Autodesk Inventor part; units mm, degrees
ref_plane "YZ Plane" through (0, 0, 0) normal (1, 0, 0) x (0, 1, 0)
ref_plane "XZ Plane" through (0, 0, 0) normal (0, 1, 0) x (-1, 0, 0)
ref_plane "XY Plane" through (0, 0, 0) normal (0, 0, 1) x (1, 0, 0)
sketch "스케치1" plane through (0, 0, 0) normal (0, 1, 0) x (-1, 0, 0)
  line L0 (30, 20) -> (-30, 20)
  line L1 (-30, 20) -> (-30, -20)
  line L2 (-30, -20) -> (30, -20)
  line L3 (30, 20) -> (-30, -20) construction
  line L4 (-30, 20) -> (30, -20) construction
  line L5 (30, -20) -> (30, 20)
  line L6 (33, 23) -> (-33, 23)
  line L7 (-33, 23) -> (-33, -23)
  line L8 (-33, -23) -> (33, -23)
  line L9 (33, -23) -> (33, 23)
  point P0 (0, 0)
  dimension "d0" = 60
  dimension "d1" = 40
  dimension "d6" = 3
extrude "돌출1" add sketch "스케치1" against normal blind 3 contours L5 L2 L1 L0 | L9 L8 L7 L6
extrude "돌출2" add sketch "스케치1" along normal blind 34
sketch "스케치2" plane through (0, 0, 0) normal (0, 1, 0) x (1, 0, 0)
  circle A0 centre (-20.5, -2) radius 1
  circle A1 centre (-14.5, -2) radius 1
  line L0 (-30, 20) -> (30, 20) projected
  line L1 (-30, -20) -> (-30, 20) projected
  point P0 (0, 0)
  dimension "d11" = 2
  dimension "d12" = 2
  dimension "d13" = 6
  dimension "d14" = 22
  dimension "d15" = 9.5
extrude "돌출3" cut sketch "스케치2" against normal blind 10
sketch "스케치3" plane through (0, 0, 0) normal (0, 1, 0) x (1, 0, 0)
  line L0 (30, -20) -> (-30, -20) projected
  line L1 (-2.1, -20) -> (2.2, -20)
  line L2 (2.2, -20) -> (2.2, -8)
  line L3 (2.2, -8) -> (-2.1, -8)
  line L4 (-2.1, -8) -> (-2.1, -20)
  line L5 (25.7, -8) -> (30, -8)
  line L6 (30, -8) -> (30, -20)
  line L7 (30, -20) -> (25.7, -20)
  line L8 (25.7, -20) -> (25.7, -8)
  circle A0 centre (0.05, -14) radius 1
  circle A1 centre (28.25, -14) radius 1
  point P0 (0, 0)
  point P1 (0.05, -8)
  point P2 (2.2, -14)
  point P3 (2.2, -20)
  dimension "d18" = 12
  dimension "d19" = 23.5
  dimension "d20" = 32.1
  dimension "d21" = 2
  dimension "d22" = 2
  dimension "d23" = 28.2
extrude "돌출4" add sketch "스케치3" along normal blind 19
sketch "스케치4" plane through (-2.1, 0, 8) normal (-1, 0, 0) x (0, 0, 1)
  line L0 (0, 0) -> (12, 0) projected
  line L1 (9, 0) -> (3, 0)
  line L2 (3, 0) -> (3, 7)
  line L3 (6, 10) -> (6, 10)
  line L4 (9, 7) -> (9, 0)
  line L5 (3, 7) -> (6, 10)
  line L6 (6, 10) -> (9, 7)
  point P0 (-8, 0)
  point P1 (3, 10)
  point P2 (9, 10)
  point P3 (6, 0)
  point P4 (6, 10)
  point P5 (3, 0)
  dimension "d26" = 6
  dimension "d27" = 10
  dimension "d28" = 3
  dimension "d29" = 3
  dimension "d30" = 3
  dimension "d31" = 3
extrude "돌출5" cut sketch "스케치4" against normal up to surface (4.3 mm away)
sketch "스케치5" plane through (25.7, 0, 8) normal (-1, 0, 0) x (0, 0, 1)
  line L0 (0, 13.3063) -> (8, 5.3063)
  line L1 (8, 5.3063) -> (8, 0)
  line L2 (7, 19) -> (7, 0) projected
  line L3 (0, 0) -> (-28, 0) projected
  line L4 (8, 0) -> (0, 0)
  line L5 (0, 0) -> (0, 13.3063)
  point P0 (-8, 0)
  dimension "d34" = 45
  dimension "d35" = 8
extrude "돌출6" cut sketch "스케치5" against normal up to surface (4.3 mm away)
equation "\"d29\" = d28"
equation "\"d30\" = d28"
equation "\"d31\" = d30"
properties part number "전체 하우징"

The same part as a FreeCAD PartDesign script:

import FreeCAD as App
import Part
import Sketcher

V = App.Vector
Q = App.Units.Quantity


def add_polygon(sketch, points):
    """Adds a closed chain of lines whose ends are joined by coincident constraints."""
    first, n = sketch.GeometryCount, len(points)
    for a, b in zip(points, points[1:] + points[:1]):
        sketch.addGeometry(Part.LineSegment(App.Vector(*a, 0), App.Vector(*b, 0)), False)
    for i in range(n):
        sketch.addConstraint(Sketcher.Constraint("Coincident", first + i, 2, first + (i + 1) % n, 1))

doc = App.newDocument("Part")
params = doc.addObject("Spreadsheet::Sheet", "Params")
for row, (alias, value) in enumerate([
    ("sketch1_width", "66 mm"),
    ("sketch1_height", "46 mm"),
    ("pad1_length", "3 mm"),
    ("sketch2_width", "60 mm"),
    ("sketch2_height", "40 mm"),
    ("pad2_length", "34 mm"),
    ("sketch3_diameter", "2 mm"),
    ("pocket1_length", "10 mm"),
    ("sketch4_diameter", "2 mm"),
    ("sketch4_height", "12 mm"),
    ("pad3_length", "19 mm"),
    ("sketch5_height", "6 mm"),
    ("pocket2_length", "4.3 mm"),
    ("sketch6_height", "8 mm"),
    ("pocket3_length", "4.3 mm"),
], start=1):
    params.set(f"A{row}", alias)
    params.set(f"B{row}", "=" + value)
    params.setAlias(f"B{row}", alias)

body = doc.addObject("PartDesign::Body", "Body")

sketch1 = body.newObject("Sketcher::SketchObject", "Sketch")
sketch1.AttachmentSupport = (doc.getObject("XZ_Plane"), [""])
sketch1.MapMode = "FlatFace"
add_polygon(sketch1, [(-33, -23), (-33, 23), (33, 23), (33, -23)])
sketch1.addConstraint([
    Sketcher.Constraint("Vertical", 0),
    Sketcher.Constraint("Horizontal", 1),
    Sketcher.Constraint("Vertical", 2),
    Sketcher.Constraint("Horizontal", 3),
    Sketcher.Constraint("Symmetric", 0, 2, 2, 2, -1, 1),
    Sketcher.Constraint("DistanceX", 1, 1, 1, 2, Q("66 mm")),
    Sketcher.Constraint("DistanceY", 0, 1, 0, 2, Q("46 mm")),
])
sketch1.setExpression("Constraints[9]", "Params.sketch1_width")
sketch1.setExpression("Constraints[10]", "Params.sketch1_height")
pad1 = body.newObject("PartDesign::Pad", "Pad")
pad1.Profile = sketch1
pad1.setExpression("Length", "Params.pad1_length")

sketch2 = body.newObject("Sketcher::SketchObject", "Sketch001")
sketch2.AttachmentSupport = (doc.getObject("XZ_Plane"), [""])
sketch2.MapMode = "FlatFace"
add_polygon(sketch2, [(-33, -23), (-33, 23), (33, 23), (33, -23)])
add_polygon(sketch2, [(30, 20), (-30, 20), (-30, -20), (30, -20)])
sketch2.addConstraint([
    Sketcher.Constraint("Vertical", 0),
    Sketcher.Constraint("Horizontal", 1),
    Sketcher.Constraint("Vertical", 2),
    Sketcher.Constraint("Horizontal", 3),
    Sketcher.Constraint("Horizontal", 4),
    Sketcher.Constraint("Vertical", 5),
    Sketcher.Constraint("Horizontal", 6),
    Sketcher.Constraint("Vertical", 7),
    Sketcher.Constraint("Symmetric", 0, 2, 2, 2, -1, 1),
    Sketcher.Constraint("Symmetric", 4, 2, 6, 2, -1, 1),
    Sketcher.Constraint("DistanceX", 4, 2, 4, 1, Q("60 mm")),
    Sketcher.Constraint("DistanceY", 5, 2, 5, 1, Q("40 mm")),
    Sketcher.Constraint("DistanceX", 0, 2, 4, 2, Q("3 mm")),
    Sketcher.Constraint("DistanceY", 4, 2, 0, 2, Q("3 mm")),
])
sketch2.setExpression("Constraints[18]", "Params.sketch2_width")
sketch2.setExpression("Constraints[19]", "Params.sketch2_height")
pad2 = body.newObject("PartDesign::Pad", "Pad001")
pad2.Profile = sketch2
pad2.setExpression("Length", "Params.pad2_length")
pad2.Reversed = True

sketch3 = body.newObject("Sketcher::SketchObject", "Sketch002")
sketch3.AttachmentSupport = (doc.getObject("XZ_Plane"), [""])
sketch3.MapMode = "FlatFace"
sketch3.addGeometry([
    Part.Circle(V(-20.5, 2, 0), V(0, 0, 1), 1),
    Part.Circle(V(-14.5, 2, 0), V(0, 0, 1), 1),
], False)
sketch3.addConstraint([
    Sketcher.Constraint("Equal", 0, 1),
    Sketcher.Constraint("Horizontal", 0, 3, 1, 3),
    Sketcher.Constraint("Diameter", 0, Q("2 mm")),
    Sketcher.Constraint("DistanceY", -1, 1, 0, 3, Q("2 mm")),
    Sketcher.Constraint("DistanceX", 0, 3, 1, 3, Q("6 mm")),
    Sketcher.Constraint("DistanceX", 0, 3, -1, 1, Q("20.5 mm")),
])
sketch3.setExpression("Constraints[2]", "Params.sketch3_diameter")
pocket1 = body.newObject("PartDesign::Pocket", "Pocket")
pocket1.Profile = sketch3
pocket1.setExpression("Length", "Params.pocket1_length")
pocket1.Reversed = True

sketch4 = body.newObject("Sketcher::SketchObject", "Sketch003")
sketch4.AttachmentSupport = (doc.getObject("XZ_Plane"), [""])
sketch4.MapMode = "FlatFace"
add_polygon(sketch4, [(-2.1, 20), (2.2, 20), (2.2, 8), (-2.1, 8)])
sketch4.addGeometry(Part.Circle(V(0.05, 14, 0), V(0, 0, 1), 1), False)
add_polygon(sketch4, [(25.7, 20), (30, 20), (30, 8), (25.7, 8)])
sketch4.addGeometry(Part.Circle(V(28.25, 14, 0), V(0, 0, 1), 1), False)
sketch4.addConstraint([
    Sketcher.Constraint("Horizontal", 0),
    Sketcher.Constraint("Vertical", 1),
    Sketcher.Constraint("Horizontal", 2),
    Sketcher.Constraint("Vertical", 3),
    Sketcher.Constraint("Horizontal", 5),
    Sketcher.Constraint("Vertical", 6),
    Sketcher.Constraint("Horizontal", 7),
    Sketcher.Constraint("Vertical", 8),
    Sketcher.Constraint("Equal", 4, 9),
    Sketcher.Constraint("Horizontal", 4, 3, 9, 3),
    Sketcher.Constraint("Horizontal", 3, 2, 5, 2),
    Sketcher.Constraint("Horizontal", 2, 2, 6, 2),
    Sketcher.Constraint("Equal", 2, 5),
    Sketcher.Constraint("Diameter", 4, Q("2 mm")),
    Sketcher.Constraint("DistanceY", 1, 2, 1, 1, Q("12 mm")),
    Sketcher.Constraint("DistanceX", 4, 3, 9, 3, Q("28.2 mm")),
    Sketcher.Constraint("DistanceX", 3, 2, 5, 2, Q("32.1 mm")),
    Sketcher.Constraint("DistanceX", 1, 2, 7, 2, Q("23.5 mm")),
    Sketcher.Constraint("DistanceY", -1, 1, 4, 3, Q("14 mm")),
    Sketcher.Constraint("DistanceY", -1, 1, 0, 2, Q("20 mm")),
    Sketcher.Constraint("DistanceX", -1, 1, 5, 2, Q("30 mm")),
    Sketcher.Constraint("DistanceX", -1, 1, 4, 3, Q("0.05 mm")),
])
sketch4.setExpression("Constraints[21]", "Params.sketch4_diameter")
sketch4.setExpression("Constraints[22]", "Params.sketch4_height")
pad3 = body.newObject("PartDesign::Pad", "Pad002")
pad3.Profile = sketch4
pad3.setExpression("Length", "Params.pad3_length")
pad3.Reversed = True

sketch5 = body.newObject("Sketcher::SketchObject", "Sketch004")
sketch5.AttachmentSupport = (doc.getObject("YZ_Plane"), [""])
sketch5.MapMode = "FlatFace"
sketch5.AttachmentOffset = App.Placement(V(0, 0, -2.1), App.Rotation())
add_polygon(sketch5, [(7, 11), (0, 11), (0, 17), (7, 17), (10, 14)])
sketch5.addConstraint([
    Sketcher.Constraint("Horizontal", 0),
    Sketcher.Constraint("Vertical", 1),
    Sketcher.Constraint("Horizontal", 2),
    Sketcher.Constraint("PointOnObject", 0, 2, -2),
    Sketcher.Constraint("Perpendicular", 3, 4),
    Sketcher.Constraint("Vertical", 2, 2, 4, 2),
    Sketcher.Constraint("Equal", 3, 4),
    Sketcher.Constraint("DistanceY", 1, 1, 1, 2, Q("6 mm")),
    Sketcher.Constraint("DistanceX", -1, 1, 3, 2, Q("10 mm")),
    Sketcher.Constraint("DistanceY", -1, 1, 0, 2, Q("11 mm")),
])
sketch5.setExpression("Constraints[12]", "Params.sketch5_height")
pocket2 = body.newObject("PartDesign::Pocket", "Pocket001")
pocket2.Profile = sketch5
pocket2.setExpression("Length", "Params.pocket2_length")
pocket2.Reversed = True

sketch6 = body.newObject("Sketcher::SketchObject", "Sketch005")
sketch6.AttachmentSupport = (doc.getObject("YZ_Plane"), [""])
sketch6.MapMode = "FlatFace"
sketch6.AttachmentOffset = App.Placement(V(0, 0, 25.7), App.Rotation())
add_polygon(sketch6, [(13.3063, 8), (0, 8), (0, 16), (5.3063, 16)])
sketch6.addConstraint([
    Sketcher.Constraint("Horizontal", 0),
    Sketcher.Constraint("Vertical", 1),
    Sketcher.Constraint("Horizontal", 2),
    Sketcher.Constraint("PointOnObject", 0, 2, -2),
    Sketcher.Constraint("DistanceY", 1, 1, 1, 2, Q("8 mm")),
    Sketcher.Constraint("Angle", 3, Q("-45 deg")),
    Sketcher.Constraint("DistanceY", -1, 1, 0, 2, Q("8 mm")),
    Sketcher.Constraint("DistanceX", 0, 2, 0, 1, Q("13.3063 mm")),
])
sketch6.setExpression("Constraints[8]", "Params.sketch6_height")
pocket3 = body.newObject("PartDesign::Pocket", "Pocket002")
pocket3.Profile = sketch6
pocket3.setExpression("Length", "Params.pocket3_length")
pocket3.Reversed = True

doc.recompute()
